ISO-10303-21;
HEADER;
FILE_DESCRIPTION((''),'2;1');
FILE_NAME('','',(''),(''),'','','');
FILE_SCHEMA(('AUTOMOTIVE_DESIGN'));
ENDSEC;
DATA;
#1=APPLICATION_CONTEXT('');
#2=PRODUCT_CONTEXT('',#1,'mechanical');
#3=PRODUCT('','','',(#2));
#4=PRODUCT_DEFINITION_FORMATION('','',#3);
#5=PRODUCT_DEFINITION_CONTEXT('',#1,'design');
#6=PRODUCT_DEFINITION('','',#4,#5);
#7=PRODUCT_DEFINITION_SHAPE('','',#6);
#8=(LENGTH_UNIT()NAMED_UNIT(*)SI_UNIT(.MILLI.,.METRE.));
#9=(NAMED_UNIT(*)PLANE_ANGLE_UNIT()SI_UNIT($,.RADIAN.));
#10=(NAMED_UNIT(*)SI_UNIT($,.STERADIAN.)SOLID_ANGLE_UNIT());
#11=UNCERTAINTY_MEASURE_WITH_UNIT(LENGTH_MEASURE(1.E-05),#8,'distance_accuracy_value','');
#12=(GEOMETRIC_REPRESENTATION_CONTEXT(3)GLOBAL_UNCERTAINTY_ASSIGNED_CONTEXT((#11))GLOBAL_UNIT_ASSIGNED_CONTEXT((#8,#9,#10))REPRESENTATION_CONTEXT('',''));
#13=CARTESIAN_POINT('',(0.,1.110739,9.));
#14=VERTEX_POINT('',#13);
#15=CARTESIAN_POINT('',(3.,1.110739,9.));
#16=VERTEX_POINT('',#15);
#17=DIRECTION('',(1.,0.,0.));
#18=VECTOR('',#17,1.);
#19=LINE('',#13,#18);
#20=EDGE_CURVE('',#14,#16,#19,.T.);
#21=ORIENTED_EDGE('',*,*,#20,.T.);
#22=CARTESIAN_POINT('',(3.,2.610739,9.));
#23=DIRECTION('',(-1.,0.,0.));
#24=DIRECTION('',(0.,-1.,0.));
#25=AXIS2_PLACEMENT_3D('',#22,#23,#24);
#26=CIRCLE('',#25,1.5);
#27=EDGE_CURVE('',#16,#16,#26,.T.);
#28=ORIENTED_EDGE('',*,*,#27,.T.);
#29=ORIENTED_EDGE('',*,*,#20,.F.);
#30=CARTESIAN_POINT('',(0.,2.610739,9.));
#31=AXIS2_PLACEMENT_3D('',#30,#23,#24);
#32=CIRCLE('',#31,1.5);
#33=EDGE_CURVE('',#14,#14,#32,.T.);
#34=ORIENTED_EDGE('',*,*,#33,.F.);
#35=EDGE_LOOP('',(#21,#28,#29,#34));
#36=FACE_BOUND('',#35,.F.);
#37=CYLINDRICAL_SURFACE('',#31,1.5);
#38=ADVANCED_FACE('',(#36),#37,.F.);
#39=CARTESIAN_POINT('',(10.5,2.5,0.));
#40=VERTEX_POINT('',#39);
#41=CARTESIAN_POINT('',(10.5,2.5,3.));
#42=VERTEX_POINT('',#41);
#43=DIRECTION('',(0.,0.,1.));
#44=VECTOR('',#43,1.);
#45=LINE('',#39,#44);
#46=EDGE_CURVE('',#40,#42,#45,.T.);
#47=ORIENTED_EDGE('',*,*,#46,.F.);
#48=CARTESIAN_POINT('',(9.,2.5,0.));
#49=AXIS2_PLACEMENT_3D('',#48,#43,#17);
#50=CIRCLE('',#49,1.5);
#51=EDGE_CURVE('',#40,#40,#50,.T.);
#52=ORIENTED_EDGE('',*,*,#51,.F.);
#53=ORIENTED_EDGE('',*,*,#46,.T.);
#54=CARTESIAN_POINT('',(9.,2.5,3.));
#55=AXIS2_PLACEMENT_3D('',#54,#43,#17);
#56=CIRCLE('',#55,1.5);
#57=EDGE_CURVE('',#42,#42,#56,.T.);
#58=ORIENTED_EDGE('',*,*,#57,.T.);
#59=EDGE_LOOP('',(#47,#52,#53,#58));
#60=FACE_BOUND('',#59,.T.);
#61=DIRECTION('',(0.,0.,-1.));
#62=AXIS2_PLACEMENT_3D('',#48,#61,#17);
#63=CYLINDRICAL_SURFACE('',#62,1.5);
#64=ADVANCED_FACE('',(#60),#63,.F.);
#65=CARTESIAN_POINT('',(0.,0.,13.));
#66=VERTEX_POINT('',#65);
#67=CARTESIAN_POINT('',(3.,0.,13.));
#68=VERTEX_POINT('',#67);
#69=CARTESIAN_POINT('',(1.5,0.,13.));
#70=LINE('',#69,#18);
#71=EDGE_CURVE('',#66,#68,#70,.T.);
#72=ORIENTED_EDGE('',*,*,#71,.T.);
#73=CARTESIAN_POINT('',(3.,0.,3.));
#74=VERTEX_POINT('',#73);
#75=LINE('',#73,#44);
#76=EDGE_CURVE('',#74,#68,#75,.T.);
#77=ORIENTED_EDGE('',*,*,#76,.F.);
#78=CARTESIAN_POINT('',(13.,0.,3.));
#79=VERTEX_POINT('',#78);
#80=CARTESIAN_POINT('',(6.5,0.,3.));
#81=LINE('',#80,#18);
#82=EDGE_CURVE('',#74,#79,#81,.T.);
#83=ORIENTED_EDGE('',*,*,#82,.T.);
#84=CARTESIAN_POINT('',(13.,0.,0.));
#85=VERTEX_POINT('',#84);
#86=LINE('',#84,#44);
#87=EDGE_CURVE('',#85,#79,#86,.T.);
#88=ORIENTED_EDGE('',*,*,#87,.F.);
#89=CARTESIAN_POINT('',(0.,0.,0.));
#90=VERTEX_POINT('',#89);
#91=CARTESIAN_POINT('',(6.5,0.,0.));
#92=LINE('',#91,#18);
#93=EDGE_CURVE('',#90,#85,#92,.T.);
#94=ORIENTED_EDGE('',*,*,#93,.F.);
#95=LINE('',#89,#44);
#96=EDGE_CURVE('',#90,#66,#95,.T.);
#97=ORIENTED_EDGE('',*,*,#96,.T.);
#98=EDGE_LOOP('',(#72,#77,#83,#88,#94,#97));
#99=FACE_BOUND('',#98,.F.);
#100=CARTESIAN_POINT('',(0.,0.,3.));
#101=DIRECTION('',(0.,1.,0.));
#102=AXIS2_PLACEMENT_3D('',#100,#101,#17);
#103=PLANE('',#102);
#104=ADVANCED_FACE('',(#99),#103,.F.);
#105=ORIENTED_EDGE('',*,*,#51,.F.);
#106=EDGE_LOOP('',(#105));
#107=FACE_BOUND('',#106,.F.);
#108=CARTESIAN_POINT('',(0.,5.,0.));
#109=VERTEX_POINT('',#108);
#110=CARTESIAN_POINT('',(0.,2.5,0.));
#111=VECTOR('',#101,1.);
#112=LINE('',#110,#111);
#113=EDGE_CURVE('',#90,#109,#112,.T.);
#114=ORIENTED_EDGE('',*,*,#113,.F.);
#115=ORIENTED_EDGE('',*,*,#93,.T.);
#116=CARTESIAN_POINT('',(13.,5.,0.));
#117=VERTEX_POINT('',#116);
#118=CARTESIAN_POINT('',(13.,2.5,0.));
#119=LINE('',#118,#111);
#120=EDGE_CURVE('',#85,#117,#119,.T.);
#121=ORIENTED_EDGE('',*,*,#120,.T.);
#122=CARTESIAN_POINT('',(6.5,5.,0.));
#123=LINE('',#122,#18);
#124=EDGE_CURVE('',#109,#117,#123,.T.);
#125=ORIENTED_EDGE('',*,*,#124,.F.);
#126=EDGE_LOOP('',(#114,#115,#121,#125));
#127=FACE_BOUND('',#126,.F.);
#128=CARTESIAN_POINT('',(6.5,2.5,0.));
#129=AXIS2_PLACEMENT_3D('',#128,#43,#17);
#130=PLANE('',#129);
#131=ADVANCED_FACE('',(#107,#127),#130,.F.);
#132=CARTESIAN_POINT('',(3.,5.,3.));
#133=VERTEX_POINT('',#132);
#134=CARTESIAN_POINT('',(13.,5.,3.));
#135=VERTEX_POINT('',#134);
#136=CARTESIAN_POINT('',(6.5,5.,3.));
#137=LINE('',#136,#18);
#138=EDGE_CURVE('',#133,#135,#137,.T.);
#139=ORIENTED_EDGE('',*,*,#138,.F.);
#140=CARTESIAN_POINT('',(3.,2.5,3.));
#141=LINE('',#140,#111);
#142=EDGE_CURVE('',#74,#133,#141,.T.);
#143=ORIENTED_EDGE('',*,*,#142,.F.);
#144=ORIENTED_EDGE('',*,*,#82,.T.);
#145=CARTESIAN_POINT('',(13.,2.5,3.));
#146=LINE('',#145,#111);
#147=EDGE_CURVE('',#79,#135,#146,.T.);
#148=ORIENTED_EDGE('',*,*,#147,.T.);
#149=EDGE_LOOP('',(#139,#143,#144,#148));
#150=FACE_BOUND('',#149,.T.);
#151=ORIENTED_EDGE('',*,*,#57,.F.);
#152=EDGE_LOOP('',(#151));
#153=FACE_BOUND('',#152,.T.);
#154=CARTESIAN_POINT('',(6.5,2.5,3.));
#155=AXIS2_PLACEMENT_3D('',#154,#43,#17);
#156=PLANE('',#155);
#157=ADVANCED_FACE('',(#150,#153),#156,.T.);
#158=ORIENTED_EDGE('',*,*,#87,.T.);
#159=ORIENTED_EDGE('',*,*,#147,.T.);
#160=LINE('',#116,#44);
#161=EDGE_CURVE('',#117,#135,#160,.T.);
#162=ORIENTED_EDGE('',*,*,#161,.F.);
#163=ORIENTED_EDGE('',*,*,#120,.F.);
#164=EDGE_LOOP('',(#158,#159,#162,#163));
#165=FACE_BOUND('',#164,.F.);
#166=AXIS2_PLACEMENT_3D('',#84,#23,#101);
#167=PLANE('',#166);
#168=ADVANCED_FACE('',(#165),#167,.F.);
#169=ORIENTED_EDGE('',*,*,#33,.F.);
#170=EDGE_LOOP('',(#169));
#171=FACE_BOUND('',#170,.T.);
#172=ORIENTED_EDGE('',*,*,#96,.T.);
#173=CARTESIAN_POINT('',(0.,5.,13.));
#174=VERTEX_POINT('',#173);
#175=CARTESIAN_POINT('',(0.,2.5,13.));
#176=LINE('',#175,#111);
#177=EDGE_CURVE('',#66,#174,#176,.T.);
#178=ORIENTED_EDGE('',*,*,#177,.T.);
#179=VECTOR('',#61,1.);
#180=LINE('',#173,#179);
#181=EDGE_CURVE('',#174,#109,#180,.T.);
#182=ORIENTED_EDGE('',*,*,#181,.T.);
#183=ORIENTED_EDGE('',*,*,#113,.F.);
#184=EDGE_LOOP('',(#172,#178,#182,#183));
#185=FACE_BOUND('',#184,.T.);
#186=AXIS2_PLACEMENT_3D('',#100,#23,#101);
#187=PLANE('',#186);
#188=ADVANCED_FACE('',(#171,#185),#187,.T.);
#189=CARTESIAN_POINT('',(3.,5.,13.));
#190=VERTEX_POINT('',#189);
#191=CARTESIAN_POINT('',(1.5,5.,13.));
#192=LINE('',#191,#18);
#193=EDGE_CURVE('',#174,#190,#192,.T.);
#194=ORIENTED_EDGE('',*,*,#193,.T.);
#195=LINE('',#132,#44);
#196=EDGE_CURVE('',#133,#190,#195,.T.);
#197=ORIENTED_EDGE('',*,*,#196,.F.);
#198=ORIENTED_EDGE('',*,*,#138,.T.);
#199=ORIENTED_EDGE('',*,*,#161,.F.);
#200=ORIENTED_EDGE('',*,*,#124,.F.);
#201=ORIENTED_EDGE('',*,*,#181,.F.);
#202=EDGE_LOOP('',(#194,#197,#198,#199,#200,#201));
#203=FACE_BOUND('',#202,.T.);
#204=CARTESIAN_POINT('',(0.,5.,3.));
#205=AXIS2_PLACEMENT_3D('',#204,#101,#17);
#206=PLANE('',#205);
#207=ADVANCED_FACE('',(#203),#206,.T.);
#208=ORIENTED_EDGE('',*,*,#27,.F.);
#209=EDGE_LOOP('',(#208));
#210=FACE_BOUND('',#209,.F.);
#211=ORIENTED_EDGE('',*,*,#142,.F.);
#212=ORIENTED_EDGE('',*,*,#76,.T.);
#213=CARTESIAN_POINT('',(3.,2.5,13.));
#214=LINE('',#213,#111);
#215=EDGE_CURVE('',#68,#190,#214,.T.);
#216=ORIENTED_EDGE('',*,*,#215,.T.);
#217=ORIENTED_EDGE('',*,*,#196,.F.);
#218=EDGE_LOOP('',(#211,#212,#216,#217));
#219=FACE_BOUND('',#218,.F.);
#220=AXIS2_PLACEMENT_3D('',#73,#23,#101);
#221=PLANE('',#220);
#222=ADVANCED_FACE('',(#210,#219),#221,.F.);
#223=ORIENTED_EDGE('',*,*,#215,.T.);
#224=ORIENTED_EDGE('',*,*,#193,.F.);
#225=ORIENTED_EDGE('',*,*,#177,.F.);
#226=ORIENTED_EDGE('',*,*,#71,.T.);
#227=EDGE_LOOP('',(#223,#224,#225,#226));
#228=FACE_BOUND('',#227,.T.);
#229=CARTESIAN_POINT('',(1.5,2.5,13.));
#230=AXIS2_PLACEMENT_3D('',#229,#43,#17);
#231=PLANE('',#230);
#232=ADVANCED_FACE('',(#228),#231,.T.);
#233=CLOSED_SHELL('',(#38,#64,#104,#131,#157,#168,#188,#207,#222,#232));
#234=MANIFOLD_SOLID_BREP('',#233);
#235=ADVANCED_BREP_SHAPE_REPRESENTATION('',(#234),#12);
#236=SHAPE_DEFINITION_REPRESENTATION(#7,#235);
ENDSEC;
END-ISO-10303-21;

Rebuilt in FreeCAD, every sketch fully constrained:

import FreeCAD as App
import Part
import Sketcher
from FreeCAD import Vector
Q = App.Units.Quantity


def add_polygon(sketch, points):
    """Adds a closed chain of lines whose ends are joined by coincident constraints."""
    first, n = sketch.GeometryCount, len(points)
    for a, b in zip(points, points[1:] + points[:1]):
        sketch.addGeometry(Part.LineSegment(App.Vector(*a, 0), App.Vector(*b, 0)), False)
    for i in range(n):
        sketch.addConstraint(Sketcher.Constraint("Coincident", first + i, 2, first + (i + 1) % n, 1))

doc = App.newDocument("Part")
params = doc.addObject("Spreadsheet::Sheet", "Params")
for row, (alias, value) in enumerate([
    ("sketch1_diameter", "3 mm"),
    ("sketch1_width", "13 mm"),
    ("sketch1_height", "5 mm"),
    ("pad1_length", "3 mm"),
    ("sketch2_width", "3 mm"),
    ("sketch2_height", "5 mm"),
    ("pad2_length", "10 mm"),
    ("sketch3_diameter", "3 mm"),
], start=1):
    params.set(f"A{row}", alias)
    params.set(f"B{row}", "=" + value)
    params.setAlias(f"B{row}", alias)

body = doc.addObject("PartDesign::Body", "Body")

# Sketch on XY plane
sketch1 = doc.addObject("Sketcher::SketchObject", "Sketch")
body.addObject(sketch1)
sketch1.AttachmentSupport = (doc.XY_Plane, [""])
sketch1.MapMode = "FlatFace"
add_polygon(sketch1, [(0, 5), (0, 0), (13, 0), (13, 5)])  # lines 0-3
sketch1.addGeometry(Part.Circle(Vector(9, 2.5, 0), Vector(0, 0, 1), 1.5), False)  # 4
sketch1.addConstraint(Sketcher.Constraint("Vertical", 0))
sketch1.addConstraint(Sketcher.Constraint("Horizontal", 1))
sketch1.addConstraint(Sketcher.Constraint("Vertical", 2))
sketch1.addConstraint(Sketcher.Constraint("Horizontal", 3))
sketch1.addConstraint(Sketcher.Constraint("Coincident", 0, 2, -1, 1))
sketch1.addConstraint(Sketcher.Constraint("Diameter", 4, Q("3 mm")))
sketch1.addConstraint(Sketcher.Constraint("DistanceX", 1, 1, 1, 2, Q("13 mm")))
sketch1.addConstraint(Sketcher.Constraint("DistanceY", 0, 2, 0, 1, Q("5 mm")))
sketch1.addConstraint(Sketcher.Constraint("DistanceX", -1, 1, 4, 3, Q("9 mm")))
sketch1.addConstraint(Sketcher.Constraint("DistanceY", -1, 1, 4, 3, Q("2.5 mm")))
sketch1.setExpression("Constraints[9]", "Params.sketch1_diameter")
sketch1.setExpression("Constraints[10]", "Params.sketch1_width")
sketch1.setExpression("Constraints[11]", "Params.sketch1_height")
pad1 = doc.addObject("PartDesign::Pad", "Pad")
body.addObject(pad1)
pad1.Profile = sketch1
pad1.setExpression("Length", "Params.pad1_length")

# Sketch on XY plane
sketch2 = doc.addObject("Sketcher::SketchObject", "Sketch001")
body.addObject(sketch2)
sketch2.AttachmentSupport = (doc.XY_Plane, [""])
sketch2.MapMode = "FlatFace"
sketch2.AttachmentOffset = App.Placement(Vector(0, 0, 3), App.Rotation())
add_polygon(sketch2, [(0, 5), (0, 0), (3, 0), (3, 5)])  # lines 0-3
sketch2.addConstraint(Sketcher.Constraint("Vertical", 0))
sketch2.addConstraint(Sketcher.Constraint("Horizontal", 1))
sketch2.addConstraint(Sketcher.Constraint("Vertical", 2))
sketch2.addConstraint(Sketcher.Constraint("Horizontal", 3))
sketch2.addConstraint(Sketcher.Constraint("Coincident", 0, 2, -1, 1))
sketch2.addConstraint(Sketcher.Constraint("DistanceX", 1, 1, 1, 2, Q("3 mm")))
sketch2.addConstraint(Sketcher.Constraint("DistanceY", 0, 2, 0, 1, Q("5 mm")))
sketch2.setExpression("Constraints[9]", "Params.sketch2_width")
sketch2.setExpression("Constraints[10]", "Params.sketch2_height")
pad2 = doc.addObject("PartDesign::Pad", "Pad001")
body.addObject(pad2)
pad2.Profile = sketch2
pad2.setExpression("Length", "Params.pad2_length")

# Sketch on YZ plane
sketch3 = doc.addObject("Sketcher::SketchObject", "Sketch002")
body.addObject(sketch3)
sketch3.AttachmentSupport = (doc.YZ_Plane, [""])
sketch3.MapMode = "FlatFace"
sketch3.addGeometry(Part.Circle(Vector(2.6, 9, 0), Vector(0, 0, 1), 1.5), False)
sketch3.addConstraint(Sketcher.Constraint("Diameter", 0, Q("3 mm")))
sketch3.addConstraint(Sketcher.Constraint("DistanceY", -1, 1, 0, 3, Q("9 mm")))
sketch3.addConstraint(Sketcher.Constraint("DistanceX", -1, 1, 0, 3, Q("2.610739 mm")))
sketch3.setExpression("Constraints[0]", "Params.sketch3_diameter")
pocket1 = doc.addObject("PartDesign::Pocket", "Pocket")
body.addObject(pocket1)
pocket1.Profile = sketch3
pocket1.Type = "ThroughAll"
pocket1.Reversed = True

doc.recompute()
